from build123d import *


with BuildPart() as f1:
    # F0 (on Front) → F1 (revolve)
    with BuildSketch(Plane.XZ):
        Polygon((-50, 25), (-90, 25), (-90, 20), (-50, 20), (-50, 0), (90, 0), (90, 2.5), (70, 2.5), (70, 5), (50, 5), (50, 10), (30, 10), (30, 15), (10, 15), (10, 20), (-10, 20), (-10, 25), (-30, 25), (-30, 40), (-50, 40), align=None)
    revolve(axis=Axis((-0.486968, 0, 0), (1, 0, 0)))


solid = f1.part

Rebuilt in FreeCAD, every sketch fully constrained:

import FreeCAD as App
import Part
import Sketcher
from FreeCAD import Vector


def add_polygon(sketch, points):
    """Adds a closed chain of lines whose ends are joined by coincident constraints."""
    first, n = sketch.GeometryCount, len(points)
    for a, b in zip(points, points[1:] + points[:1]):
        sketch.addGeometry(Part.LineSegment(App.Vector(*a, 0), App.Vector(*b, 0)), False)
    for i in range(n):
        sketch.addConstraint(Sketcher.Constraint("Coincident", first + i, 2, first + (i + 1) % n, 1))

doc = App.newDocument("Part")
params = doc.addObject("Spreadsheet::Sheet", "Params")
for row, (alias, value) in enumerate([
    ("sketch1_width", "40 mm"),
    ("sketch1_width2", "140 mm"),
    ("sketch1_height", "5 mm"),
    ("sketch1_height2", "15 mm"),
    ("revolution_angle", "360 deg"),
], start=1):
    params.set(f"A{row}", alias)
    params.set(f"B{row}", "=" + value)
    params.setAlias(f"B{row}", alias)

body = doc.addObject("PartDesign::Body", "Body")

# Sketch on XZ plane
sketch1 = body.newObject("Sketcher::SketchObject", "Sketch")
sketch1.AttachmentSupport = (doc.getObject("XZ_Plane"), [""])
sketch1.MapMode = "FlatFace"
add_polygon(sketch1, [(-50, 25), (-90, 25), (-90, 20), (-50, 20), (-50, 0), (90, 0), (90, 2.5), (70, 2.5), (70, 5), (50, 5), (50, 10), (30, 10), (30, 15), (10, 15), (10, 20), (-10, 20), (-10, 25), (-30, 25), (-30, 40), (-50, 40)])  # lines 0-19
sketch1.addConstraint(Sketcher.Constraint("Horizontal", 0))
sketch1.addConstraint(Sketcher.Constraint("Vertical", 1))
sketch1.addConstraint(Sketcher.Constraint("Horizontal", 2))
sketch1.addConstraint(Sketcher.Constraint("Vertical", 3))
sketch1.addConstraint(Sketcher.Constraint("Horizontal", 4))
sketch1.addConstraint(Sketcher.Constraint("Vertical", 5))
sketch1.addConstraint(Sketcher.Constraint("Horizontal", 6))
sketch1.addConstraint(Sketcher.Constraint("Vertical", 7))
sketch1.addConstraint(Sketcher.Constraint("Horizontal", 8))
sketch1.addConstraint(Sketcher.Constraint("Vertical", 9))
sketch1.addConstraint(Sketcher.Constraint("Horizontal", 10))
sketch1.addConstraint(Sketcher.Constraint("Vertical", 11))
sketch1.addConstraint(Sketcher.Constraint("Horizontal", 12))
sketch1.addConstraint(Sketcher.Constraint("Vertical", 13))
sketch1.addConstraint(Sketcher.Constraint("Horizontal", 14))
sketch1.addConstraint(Sketcher.Constraint("Vertical", 15))
sketch1.addConstraint(Sketcher.Constraint("Horizontal", 16))
sketch1.addConstraint(Sketcher.Constraint("Vertical", 17))
sketch1.addConstraint(Sketcher.Constraint("Horizontal", 18))
sketch1.addConstraint(Sketcher.Constraint("Vertical", 19))
sketch1.addConstraint(Sketcher.Constraint("PointOnObject", 3, 2, -1))
sketch1.addConstraint(Sketcher.Constraint("Horizontal", 2, 2, 13, 2))
sketch1.addConstraint(Sketcher.Constraint("Horizontal", 0, 2, 15, 2))
sketch1.addConstraint(Sketcher.Constraint("Vertical", 3, 2, 18, 2))
sketch1.addConstraint(Sketcher.Constraint("Equal", 6, 8))
sketch1.addConstraint(Sketcher.Constraint("Equal", 8, 10))
sketch1.addConstraint(Sketcher.Constraint("Equal", 10, 12))
sketch1.addConstraint(Sketcher.Constraint("Equal", 12, 14))
sketch1.addConstraint(Sketcher.Constraint("Equal", 14, 16))
sketch1.addConstraint(Sketcher.Constraint("Equal", 16, 18))
sketch1.addConstraint(Sketcher.Constraint("Equal", 18, 3))
sketch1.addConstraint(Sketcher.Constraint("Equal", 5, 7))
sketch1.addConstraint(Sketcher.Constraint("Equal", 1, 9))
sketch1.addConstraint(Sketcher.Constraint("Equal", 9, 11))
sketch1.addConstraint(Sketcher.Constraint("Equal", 11, 13))
sketch1.addConstraint(Sketcher.Constraint("DistanceX", 0, 2, 0, 1, 40.0))
sketch1.addConstraint(Sketcher.Constraint("DistanceX", 4, 1, 4, 2, 140.0))
sketch1.addConstraint(Sketcher.Constraint("DistanceY", 1, 2, 1, 1, 5.0))
sketch1.addConstraint(Sketcher.Constraint("DistanceY", 17, 1, 17, 2, 15.0))
sketch1.addConstraint(Sketcher.Constraint("DistanceX", 0, 2, -1, 1, 90.0))
sketch1.setExpression("Constraints[55]", "Params.sketch1_width")
sketch1.setExpression("Constraints[56]", "Params.sketch1_width2")
sketch1.setExpression("Constraints[57]", "Params.sketch1_height")
sketch1.setExpression("Constraints[58]", "Params.sketch1_height2")
revolution = body.newObject("PartDesign::Revolution", "Revolution")
revolution.Profile = sketch1
revolution.ReferenceAxis = (sketch1, ["H_Axis"])
revolution.setExpression("Angle", "Params.revolution_angle")

doc.recompute()
